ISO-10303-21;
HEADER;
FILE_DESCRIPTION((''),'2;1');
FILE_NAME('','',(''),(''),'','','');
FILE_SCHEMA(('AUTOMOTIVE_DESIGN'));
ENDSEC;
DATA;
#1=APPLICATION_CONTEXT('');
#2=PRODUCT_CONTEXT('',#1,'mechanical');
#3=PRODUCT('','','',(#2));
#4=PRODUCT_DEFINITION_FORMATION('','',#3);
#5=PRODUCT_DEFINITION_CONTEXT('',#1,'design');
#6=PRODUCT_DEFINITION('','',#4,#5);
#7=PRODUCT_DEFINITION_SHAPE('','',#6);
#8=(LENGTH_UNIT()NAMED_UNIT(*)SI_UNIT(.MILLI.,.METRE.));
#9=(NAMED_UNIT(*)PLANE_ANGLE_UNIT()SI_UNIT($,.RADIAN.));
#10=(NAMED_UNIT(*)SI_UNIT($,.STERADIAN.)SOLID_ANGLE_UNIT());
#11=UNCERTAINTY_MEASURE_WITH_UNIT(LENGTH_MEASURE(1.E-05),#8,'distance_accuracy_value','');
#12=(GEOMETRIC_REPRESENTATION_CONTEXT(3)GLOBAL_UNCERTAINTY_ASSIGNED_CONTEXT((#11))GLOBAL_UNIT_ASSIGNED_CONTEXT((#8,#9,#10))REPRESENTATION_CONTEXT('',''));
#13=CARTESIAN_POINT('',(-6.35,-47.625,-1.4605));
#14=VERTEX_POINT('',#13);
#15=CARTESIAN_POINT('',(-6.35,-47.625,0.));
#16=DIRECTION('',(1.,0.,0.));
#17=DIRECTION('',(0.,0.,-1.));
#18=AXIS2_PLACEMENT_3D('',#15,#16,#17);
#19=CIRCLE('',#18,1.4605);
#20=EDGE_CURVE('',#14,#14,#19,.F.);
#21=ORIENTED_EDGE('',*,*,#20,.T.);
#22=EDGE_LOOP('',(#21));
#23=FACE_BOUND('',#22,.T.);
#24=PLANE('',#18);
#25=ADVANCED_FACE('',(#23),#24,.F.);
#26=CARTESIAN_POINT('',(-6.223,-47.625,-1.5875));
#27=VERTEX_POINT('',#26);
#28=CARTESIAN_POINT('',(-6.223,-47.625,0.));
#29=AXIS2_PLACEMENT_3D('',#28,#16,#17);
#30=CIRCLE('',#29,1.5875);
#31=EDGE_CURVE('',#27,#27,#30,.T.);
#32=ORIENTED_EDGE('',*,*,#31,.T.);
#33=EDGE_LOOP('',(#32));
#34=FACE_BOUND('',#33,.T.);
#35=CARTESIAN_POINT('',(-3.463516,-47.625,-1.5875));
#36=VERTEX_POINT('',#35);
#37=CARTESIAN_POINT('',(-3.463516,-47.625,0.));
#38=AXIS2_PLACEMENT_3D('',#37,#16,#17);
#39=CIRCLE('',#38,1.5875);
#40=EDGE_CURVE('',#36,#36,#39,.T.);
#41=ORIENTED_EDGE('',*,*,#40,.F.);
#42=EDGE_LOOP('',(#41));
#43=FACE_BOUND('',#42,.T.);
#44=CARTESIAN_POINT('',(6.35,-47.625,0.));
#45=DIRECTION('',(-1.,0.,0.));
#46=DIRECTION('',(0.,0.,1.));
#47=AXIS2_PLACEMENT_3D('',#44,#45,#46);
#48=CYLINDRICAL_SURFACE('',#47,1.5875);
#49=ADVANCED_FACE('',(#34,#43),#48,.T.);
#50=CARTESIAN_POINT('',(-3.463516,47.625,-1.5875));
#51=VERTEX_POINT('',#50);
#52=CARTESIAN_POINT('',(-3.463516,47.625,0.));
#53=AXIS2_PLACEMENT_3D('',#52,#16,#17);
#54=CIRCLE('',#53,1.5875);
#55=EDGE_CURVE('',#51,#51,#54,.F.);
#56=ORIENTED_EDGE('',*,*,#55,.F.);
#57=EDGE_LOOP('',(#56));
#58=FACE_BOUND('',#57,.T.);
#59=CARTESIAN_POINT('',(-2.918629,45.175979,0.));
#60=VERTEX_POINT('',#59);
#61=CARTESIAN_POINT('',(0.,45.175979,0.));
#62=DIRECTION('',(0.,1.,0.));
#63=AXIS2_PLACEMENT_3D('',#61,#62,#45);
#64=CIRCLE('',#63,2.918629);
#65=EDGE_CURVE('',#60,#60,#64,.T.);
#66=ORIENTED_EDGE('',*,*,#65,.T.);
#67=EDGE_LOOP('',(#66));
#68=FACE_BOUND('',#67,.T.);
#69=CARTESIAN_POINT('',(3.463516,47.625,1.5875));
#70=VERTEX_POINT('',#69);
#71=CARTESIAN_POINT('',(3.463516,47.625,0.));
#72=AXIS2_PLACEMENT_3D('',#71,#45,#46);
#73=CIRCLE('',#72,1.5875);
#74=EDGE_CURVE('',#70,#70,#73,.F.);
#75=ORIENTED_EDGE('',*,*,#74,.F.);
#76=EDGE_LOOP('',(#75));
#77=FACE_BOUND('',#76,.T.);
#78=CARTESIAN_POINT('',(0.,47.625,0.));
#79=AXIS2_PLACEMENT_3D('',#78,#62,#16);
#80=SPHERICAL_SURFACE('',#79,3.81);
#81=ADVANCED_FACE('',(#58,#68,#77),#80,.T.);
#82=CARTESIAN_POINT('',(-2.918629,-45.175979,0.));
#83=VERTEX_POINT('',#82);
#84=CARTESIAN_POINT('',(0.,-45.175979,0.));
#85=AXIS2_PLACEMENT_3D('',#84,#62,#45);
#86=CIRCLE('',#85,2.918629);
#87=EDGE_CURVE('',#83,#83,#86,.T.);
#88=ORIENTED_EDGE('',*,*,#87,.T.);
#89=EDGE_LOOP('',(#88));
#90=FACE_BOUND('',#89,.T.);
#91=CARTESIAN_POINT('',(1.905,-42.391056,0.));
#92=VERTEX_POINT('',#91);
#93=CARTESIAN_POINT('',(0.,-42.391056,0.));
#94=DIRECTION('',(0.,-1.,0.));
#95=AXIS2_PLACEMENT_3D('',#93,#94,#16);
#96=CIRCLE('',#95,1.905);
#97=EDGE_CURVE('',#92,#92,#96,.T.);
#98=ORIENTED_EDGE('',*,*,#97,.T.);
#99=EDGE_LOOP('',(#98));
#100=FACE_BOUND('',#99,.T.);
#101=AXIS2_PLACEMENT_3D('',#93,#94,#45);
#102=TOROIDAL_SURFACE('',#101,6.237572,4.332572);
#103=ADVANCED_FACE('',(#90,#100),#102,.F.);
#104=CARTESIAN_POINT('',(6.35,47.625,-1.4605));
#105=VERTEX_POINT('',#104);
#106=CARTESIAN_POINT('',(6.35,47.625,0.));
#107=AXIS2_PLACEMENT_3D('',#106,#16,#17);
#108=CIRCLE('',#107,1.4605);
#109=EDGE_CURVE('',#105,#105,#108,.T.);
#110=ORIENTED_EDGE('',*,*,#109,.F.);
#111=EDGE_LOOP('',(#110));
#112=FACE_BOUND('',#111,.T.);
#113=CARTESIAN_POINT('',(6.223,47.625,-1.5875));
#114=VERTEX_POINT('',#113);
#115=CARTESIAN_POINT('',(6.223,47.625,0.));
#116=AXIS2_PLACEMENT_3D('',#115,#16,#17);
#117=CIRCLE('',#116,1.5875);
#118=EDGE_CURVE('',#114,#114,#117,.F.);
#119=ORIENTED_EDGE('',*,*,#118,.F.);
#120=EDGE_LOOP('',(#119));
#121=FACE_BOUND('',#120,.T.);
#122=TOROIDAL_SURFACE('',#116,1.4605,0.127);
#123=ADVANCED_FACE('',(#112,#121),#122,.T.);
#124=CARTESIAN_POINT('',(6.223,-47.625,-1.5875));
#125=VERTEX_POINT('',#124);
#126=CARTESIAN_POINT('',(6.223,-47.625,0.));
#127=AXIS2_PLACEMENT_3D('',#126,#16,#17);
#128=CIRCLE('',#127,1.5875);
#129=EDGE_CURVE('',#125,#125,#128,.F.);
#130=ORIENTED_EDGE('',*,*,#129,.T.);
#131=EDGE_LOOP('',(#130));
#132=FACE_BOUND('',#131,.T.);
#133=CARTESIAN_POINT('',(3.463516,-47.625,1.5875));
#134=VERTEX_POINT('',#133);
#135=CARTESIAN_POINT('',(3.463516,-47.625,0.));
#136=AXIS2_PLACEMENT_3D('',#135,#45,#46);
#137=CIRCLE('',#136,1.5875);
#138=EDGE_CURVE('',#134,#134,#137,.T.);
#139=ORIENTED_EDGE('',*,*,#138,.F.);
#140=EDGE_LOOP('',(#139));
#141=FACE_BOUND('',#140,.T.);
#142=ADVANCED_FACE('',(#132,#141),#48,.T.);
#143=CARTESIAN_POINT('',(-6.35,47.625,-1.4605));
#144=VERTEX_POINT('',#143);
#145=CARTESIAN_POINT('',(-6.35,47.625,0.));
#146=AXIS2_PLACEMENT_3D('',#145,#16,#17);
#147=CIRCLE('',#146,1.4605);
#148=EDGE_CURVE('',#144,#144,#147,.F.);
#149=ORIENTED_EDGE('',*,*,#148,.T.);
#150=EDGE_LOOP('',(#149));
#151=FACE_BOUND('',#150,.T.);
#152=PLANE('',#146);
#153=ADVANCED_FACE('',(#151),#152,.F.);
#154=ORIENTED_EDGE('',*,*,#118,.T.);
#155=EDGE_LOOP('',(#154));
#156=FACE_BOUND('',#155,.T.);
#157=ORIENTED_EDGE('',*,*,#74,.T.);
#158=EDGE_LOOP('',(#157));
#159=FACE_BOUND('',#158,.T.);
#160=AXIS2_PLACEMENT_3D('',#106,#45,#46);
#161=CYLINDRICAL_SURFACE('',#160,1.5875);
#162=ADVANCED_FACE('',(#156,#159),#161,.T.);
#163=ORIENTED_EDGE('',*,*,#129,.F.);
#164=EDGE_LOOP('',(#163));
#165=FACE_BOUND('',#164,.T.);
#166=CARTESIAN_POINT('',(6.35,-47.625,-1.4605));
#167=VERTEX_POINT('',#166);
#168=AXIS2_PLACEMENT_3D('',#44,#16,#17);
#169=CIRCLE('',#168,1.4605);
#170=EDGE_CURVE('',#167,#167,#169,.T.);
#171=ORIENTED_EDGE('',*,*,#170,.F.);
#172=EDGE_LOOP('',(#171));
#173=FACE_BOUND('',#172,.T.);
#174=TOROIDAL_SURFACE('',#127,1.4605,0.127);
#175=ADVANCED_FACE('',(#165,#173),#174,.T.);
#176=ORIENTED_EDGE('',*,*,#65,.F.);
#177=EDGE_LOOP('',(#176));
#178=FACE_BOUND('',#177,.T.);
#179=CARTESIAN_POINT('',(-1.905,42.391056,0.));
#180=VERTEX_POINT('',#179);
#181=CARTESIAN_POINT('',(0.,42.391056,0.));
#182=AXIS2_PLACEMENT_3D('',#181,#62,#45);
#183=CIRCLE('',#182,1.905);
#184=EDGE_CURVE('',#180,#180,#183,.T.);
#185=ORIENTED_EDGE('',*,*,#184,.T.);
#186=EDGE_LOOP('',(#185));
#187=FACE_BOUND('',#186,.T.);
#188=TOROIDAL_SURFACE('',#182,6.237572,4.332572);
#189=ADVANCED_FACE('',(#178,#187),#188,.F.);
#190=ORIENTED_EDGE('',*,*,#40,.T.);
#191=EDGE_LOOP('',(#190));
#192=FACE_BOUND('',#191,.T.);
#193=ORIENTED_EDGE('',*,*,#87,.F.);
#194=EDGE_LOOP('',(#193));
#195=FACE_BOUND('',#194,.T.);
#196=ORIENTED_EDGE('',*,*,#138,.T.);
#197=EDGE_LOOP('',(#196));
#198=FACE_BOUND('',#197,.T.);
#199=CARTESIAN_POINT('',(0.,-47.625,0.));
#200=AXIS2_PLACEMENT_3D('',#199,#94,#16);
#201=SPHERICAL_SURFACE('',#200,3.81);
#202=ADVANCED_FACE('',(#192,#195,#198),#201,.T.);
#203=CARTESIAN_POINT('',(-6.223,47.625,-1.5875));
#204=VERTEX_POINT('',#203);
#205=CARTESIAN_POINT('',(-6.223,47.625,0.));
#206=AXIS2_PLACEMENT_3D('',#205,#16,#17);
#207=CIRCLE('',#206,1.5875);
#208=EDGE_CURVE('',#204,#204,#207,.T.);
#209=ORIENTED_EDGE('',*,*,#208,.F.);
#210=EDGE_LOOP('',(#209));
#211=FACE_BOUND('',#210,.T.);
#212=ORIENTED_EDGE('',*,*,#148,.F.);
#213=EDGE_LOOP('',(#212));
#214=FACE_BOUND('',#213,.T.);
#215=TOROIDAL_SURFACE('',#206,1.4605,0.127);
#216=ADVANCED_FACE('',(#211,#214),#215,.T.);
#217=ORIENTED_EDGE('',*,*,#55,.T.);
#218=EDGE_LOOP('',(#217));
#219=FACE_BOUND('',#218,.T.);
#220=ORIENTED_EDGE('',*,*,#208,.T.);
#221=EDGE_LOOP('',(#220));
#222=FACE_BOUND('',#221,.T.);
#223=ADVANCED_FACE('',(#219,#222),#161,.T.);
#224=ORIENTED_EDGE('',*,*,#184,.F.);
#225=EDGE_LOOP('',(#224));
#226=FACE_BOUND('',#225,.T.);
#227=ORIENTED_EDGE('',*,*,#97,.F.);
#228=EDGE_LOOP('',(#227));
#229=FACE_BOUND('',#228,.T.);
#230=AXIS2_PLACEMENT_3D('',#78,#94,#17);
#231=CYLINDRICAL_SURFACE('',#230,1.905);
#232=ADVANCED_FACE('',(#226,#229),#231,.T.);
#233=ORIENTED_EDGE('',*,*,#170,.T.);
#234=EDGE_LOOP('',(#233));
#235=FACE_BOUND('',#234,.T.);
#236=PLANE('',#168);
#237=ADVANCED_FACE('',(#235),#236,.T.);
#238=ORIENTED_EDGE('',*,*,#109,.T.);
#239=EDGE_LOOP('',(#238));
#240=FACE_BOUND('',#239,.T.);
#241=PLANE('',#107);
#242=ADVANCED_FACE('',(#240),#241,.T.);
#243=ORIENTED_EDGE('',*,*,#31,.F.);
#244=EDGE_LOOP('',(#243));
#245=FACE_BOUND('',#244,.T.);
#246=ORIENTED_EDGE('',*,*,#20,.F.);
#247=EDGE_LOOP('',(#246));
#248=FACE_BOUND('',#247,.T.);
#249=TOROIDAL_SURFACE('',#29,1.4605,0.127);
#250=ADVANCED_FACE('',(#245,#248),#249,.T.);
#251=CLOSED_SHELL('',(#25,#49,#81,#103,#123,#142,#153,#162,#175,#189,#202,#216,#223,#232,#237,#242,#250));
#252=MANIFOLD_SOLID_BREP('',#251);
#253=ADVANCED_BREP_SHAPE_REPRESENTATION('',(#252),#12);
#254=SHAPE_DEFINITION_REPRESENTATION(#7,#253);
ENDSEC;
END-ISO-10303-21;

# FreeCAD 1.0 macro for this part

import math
import FreeCAD as App
import Part
import Sketcher

V = App.Vector
Q = App.Units.Quantity


def edges_at(feature, points):
    """Names of the edges that pass closest to the given points."""
    edges = feature.Shape.Edges
    near = lambda p: min(range(len(edges)), key=lambda i: edges[i].distToShape(Part.Vertex(*p))[0])
    return sorted({f"Edge{near(p) + 1}" for p in points})

doc = App.newDocument("Part")
body = doc.addObject("PartDesign::Body", "Body")

# Sketch on XZ plane
sketch1 = doc.addObject("Sketcher::SketchObject", "Sketch")
body.addObject(sketch1)
sketch1.AttachmentSupport = (doc.XZ_Plane, [""])
sketch1.MapMode = "FlatFace"
sketch1.addGeometry(Part.Circle(V(0, 0, 0), V(0, 0, 1), 1.9), False)
sketch1.addConstraint([
    Sketcher.Constraint("Coincident", 0, 3, -1, 1),
    Sketcher.Constraint("Diameter", 0, Q("0.15 in")),
])
pad1 = doc.addObject("PartDesign::Pad", "Pad")
body.addObject(pad1)
pad1.Profile = sketch1
pad1.Length = Q("1.875 in")
pad1.Reversed = True

# Sketch on XY plane
sketch2 = doc.addObject("Sketcher::SketchObject", "Sketch001")
body.addObject(sketch2)
sketch2.AttachmentSupport = (doc.XY_Plane, [""])
sketch2.MapMode = "FlatFace"
sketch2.addGeometry([
    Part.LineSegment(V(0, 42.4, 0), V(1.9, 42.4, 0)),
    Part.ArcOfCircle(Part.Circle(V(6.2, 42.4, 0), V(0, 0, 1), 4.3), math.radians(140), math.radians(180)),
    Part.ArcOfCircle(Part.Circle(V(0, 47.6, 0), V(0, 0, 1), 3.8), math.radians(-40), math.radians(90)),
    Part.LineSegment(V(0, 51.4, 0), V(0, 42.4, 0)),
], False)
sketch2.addConstraint([
    Sketcher.Constraint("Coincident", 0, 2, 1, 2),
    Sketcher.Constraint("Tangent", 1, 1, 2, 1),
    Sketcher.Constraint("Coincident", 2, 2, 3, 1),
    Sketcher.Constraint("Coincident", 3, 2, 0, 1),
    Sketcher.Constraint("Horizontal", 0),
    Sketcher.Constraint("Vertical", 3),
    Sketcher.Constraint("PointOnObject", 2, 3, -2),
    Sketcher.Constraint("PointOnObject", 2, 2, -2),
    Sketcher.Constraint("Horizontal", 1, 3, 0, 2),
    Sketcher.Constraint("Radius", 2, Q("0.15 in")),
    Sketcher.Constraint("DistanceX", 0, 1, 0, 2, Q("0.075 in")),
    Sketcher.Constraint("DistanceY", -1, 1, 2, 3, Q("1.875 in")),
    Sketcher.Constraint("Radius", 1, 4.332572),
])
revolution = doc.addObject("PartDesign::Revolution", "Revolution")
body.addObject(revolution)
revolution.Profile = sketch2
revolution.ReferenceAxis = (sketch2, ["V_Axis"])
revolution.Angle = 360

# Sketch on YZ plane
sketch3 = doc.addObject("Sketcher::SketchObject", "Sketch002")
body.addObject(sketch3)
sketch3.AttachmentSupport = (doc.YZ_Plane, [""])
sketch3.MapMode = "FlatFace"
sketch3.addGeometry(Part.Circle(V(47.6, 0, 0), V(0, 0, 1), 1.6), False)
sketch3.addConstraint([
    Sketcher.Constraint("PointOnObject", 0, 3, -1),
    Sketcher.Constraint("Diameter", 0, Q("0.125 in")),
    Sketcher.Constraint("DistanceX", -1, 1, 0, 3, Q("1.875 in")),
])
pad2 = doc.addObject("PartDesign::Pad", "Pad001")
body.addObject(pad2)
pad2.Profile = sketch3
pad2.Length = Q("0.5 in")
pad2.Midplane = True
doc.recompute()

fillet = doc.addObject("PartDesign::Fillet", "Fillet")
body.addObject(fillet)
fillet.Base = (pad2, edges_at(pad2, [(-6.35, 47.625, -1.587), (6.35, 47.625, -1.587)]))
fillet.Radius = Q("0.005 in")
doc.recompute()

mirrored = doc.addObject("PartDesign::Mirrored", "Mirrored")
body.addObject(mirrored)
mirrored.Originals = [pad1, revolution, pad2]
mirrored.MirrorPlane = (doc.XZ_Plane, [""])
body.Tip = mirrored
doc.recompute()

fillet2 = doc.addObject("PartDesign::Fillet", "Fillet001")
body.addObject(fillet2)
fillet2.Base = (mirrored, edges_at(mirrored, [(-6.35, -47.625, -1.587), (6.35, -47.625, -1.587)]))
fillet2.Radius = Q("0.005 in")

doc.recompute()
